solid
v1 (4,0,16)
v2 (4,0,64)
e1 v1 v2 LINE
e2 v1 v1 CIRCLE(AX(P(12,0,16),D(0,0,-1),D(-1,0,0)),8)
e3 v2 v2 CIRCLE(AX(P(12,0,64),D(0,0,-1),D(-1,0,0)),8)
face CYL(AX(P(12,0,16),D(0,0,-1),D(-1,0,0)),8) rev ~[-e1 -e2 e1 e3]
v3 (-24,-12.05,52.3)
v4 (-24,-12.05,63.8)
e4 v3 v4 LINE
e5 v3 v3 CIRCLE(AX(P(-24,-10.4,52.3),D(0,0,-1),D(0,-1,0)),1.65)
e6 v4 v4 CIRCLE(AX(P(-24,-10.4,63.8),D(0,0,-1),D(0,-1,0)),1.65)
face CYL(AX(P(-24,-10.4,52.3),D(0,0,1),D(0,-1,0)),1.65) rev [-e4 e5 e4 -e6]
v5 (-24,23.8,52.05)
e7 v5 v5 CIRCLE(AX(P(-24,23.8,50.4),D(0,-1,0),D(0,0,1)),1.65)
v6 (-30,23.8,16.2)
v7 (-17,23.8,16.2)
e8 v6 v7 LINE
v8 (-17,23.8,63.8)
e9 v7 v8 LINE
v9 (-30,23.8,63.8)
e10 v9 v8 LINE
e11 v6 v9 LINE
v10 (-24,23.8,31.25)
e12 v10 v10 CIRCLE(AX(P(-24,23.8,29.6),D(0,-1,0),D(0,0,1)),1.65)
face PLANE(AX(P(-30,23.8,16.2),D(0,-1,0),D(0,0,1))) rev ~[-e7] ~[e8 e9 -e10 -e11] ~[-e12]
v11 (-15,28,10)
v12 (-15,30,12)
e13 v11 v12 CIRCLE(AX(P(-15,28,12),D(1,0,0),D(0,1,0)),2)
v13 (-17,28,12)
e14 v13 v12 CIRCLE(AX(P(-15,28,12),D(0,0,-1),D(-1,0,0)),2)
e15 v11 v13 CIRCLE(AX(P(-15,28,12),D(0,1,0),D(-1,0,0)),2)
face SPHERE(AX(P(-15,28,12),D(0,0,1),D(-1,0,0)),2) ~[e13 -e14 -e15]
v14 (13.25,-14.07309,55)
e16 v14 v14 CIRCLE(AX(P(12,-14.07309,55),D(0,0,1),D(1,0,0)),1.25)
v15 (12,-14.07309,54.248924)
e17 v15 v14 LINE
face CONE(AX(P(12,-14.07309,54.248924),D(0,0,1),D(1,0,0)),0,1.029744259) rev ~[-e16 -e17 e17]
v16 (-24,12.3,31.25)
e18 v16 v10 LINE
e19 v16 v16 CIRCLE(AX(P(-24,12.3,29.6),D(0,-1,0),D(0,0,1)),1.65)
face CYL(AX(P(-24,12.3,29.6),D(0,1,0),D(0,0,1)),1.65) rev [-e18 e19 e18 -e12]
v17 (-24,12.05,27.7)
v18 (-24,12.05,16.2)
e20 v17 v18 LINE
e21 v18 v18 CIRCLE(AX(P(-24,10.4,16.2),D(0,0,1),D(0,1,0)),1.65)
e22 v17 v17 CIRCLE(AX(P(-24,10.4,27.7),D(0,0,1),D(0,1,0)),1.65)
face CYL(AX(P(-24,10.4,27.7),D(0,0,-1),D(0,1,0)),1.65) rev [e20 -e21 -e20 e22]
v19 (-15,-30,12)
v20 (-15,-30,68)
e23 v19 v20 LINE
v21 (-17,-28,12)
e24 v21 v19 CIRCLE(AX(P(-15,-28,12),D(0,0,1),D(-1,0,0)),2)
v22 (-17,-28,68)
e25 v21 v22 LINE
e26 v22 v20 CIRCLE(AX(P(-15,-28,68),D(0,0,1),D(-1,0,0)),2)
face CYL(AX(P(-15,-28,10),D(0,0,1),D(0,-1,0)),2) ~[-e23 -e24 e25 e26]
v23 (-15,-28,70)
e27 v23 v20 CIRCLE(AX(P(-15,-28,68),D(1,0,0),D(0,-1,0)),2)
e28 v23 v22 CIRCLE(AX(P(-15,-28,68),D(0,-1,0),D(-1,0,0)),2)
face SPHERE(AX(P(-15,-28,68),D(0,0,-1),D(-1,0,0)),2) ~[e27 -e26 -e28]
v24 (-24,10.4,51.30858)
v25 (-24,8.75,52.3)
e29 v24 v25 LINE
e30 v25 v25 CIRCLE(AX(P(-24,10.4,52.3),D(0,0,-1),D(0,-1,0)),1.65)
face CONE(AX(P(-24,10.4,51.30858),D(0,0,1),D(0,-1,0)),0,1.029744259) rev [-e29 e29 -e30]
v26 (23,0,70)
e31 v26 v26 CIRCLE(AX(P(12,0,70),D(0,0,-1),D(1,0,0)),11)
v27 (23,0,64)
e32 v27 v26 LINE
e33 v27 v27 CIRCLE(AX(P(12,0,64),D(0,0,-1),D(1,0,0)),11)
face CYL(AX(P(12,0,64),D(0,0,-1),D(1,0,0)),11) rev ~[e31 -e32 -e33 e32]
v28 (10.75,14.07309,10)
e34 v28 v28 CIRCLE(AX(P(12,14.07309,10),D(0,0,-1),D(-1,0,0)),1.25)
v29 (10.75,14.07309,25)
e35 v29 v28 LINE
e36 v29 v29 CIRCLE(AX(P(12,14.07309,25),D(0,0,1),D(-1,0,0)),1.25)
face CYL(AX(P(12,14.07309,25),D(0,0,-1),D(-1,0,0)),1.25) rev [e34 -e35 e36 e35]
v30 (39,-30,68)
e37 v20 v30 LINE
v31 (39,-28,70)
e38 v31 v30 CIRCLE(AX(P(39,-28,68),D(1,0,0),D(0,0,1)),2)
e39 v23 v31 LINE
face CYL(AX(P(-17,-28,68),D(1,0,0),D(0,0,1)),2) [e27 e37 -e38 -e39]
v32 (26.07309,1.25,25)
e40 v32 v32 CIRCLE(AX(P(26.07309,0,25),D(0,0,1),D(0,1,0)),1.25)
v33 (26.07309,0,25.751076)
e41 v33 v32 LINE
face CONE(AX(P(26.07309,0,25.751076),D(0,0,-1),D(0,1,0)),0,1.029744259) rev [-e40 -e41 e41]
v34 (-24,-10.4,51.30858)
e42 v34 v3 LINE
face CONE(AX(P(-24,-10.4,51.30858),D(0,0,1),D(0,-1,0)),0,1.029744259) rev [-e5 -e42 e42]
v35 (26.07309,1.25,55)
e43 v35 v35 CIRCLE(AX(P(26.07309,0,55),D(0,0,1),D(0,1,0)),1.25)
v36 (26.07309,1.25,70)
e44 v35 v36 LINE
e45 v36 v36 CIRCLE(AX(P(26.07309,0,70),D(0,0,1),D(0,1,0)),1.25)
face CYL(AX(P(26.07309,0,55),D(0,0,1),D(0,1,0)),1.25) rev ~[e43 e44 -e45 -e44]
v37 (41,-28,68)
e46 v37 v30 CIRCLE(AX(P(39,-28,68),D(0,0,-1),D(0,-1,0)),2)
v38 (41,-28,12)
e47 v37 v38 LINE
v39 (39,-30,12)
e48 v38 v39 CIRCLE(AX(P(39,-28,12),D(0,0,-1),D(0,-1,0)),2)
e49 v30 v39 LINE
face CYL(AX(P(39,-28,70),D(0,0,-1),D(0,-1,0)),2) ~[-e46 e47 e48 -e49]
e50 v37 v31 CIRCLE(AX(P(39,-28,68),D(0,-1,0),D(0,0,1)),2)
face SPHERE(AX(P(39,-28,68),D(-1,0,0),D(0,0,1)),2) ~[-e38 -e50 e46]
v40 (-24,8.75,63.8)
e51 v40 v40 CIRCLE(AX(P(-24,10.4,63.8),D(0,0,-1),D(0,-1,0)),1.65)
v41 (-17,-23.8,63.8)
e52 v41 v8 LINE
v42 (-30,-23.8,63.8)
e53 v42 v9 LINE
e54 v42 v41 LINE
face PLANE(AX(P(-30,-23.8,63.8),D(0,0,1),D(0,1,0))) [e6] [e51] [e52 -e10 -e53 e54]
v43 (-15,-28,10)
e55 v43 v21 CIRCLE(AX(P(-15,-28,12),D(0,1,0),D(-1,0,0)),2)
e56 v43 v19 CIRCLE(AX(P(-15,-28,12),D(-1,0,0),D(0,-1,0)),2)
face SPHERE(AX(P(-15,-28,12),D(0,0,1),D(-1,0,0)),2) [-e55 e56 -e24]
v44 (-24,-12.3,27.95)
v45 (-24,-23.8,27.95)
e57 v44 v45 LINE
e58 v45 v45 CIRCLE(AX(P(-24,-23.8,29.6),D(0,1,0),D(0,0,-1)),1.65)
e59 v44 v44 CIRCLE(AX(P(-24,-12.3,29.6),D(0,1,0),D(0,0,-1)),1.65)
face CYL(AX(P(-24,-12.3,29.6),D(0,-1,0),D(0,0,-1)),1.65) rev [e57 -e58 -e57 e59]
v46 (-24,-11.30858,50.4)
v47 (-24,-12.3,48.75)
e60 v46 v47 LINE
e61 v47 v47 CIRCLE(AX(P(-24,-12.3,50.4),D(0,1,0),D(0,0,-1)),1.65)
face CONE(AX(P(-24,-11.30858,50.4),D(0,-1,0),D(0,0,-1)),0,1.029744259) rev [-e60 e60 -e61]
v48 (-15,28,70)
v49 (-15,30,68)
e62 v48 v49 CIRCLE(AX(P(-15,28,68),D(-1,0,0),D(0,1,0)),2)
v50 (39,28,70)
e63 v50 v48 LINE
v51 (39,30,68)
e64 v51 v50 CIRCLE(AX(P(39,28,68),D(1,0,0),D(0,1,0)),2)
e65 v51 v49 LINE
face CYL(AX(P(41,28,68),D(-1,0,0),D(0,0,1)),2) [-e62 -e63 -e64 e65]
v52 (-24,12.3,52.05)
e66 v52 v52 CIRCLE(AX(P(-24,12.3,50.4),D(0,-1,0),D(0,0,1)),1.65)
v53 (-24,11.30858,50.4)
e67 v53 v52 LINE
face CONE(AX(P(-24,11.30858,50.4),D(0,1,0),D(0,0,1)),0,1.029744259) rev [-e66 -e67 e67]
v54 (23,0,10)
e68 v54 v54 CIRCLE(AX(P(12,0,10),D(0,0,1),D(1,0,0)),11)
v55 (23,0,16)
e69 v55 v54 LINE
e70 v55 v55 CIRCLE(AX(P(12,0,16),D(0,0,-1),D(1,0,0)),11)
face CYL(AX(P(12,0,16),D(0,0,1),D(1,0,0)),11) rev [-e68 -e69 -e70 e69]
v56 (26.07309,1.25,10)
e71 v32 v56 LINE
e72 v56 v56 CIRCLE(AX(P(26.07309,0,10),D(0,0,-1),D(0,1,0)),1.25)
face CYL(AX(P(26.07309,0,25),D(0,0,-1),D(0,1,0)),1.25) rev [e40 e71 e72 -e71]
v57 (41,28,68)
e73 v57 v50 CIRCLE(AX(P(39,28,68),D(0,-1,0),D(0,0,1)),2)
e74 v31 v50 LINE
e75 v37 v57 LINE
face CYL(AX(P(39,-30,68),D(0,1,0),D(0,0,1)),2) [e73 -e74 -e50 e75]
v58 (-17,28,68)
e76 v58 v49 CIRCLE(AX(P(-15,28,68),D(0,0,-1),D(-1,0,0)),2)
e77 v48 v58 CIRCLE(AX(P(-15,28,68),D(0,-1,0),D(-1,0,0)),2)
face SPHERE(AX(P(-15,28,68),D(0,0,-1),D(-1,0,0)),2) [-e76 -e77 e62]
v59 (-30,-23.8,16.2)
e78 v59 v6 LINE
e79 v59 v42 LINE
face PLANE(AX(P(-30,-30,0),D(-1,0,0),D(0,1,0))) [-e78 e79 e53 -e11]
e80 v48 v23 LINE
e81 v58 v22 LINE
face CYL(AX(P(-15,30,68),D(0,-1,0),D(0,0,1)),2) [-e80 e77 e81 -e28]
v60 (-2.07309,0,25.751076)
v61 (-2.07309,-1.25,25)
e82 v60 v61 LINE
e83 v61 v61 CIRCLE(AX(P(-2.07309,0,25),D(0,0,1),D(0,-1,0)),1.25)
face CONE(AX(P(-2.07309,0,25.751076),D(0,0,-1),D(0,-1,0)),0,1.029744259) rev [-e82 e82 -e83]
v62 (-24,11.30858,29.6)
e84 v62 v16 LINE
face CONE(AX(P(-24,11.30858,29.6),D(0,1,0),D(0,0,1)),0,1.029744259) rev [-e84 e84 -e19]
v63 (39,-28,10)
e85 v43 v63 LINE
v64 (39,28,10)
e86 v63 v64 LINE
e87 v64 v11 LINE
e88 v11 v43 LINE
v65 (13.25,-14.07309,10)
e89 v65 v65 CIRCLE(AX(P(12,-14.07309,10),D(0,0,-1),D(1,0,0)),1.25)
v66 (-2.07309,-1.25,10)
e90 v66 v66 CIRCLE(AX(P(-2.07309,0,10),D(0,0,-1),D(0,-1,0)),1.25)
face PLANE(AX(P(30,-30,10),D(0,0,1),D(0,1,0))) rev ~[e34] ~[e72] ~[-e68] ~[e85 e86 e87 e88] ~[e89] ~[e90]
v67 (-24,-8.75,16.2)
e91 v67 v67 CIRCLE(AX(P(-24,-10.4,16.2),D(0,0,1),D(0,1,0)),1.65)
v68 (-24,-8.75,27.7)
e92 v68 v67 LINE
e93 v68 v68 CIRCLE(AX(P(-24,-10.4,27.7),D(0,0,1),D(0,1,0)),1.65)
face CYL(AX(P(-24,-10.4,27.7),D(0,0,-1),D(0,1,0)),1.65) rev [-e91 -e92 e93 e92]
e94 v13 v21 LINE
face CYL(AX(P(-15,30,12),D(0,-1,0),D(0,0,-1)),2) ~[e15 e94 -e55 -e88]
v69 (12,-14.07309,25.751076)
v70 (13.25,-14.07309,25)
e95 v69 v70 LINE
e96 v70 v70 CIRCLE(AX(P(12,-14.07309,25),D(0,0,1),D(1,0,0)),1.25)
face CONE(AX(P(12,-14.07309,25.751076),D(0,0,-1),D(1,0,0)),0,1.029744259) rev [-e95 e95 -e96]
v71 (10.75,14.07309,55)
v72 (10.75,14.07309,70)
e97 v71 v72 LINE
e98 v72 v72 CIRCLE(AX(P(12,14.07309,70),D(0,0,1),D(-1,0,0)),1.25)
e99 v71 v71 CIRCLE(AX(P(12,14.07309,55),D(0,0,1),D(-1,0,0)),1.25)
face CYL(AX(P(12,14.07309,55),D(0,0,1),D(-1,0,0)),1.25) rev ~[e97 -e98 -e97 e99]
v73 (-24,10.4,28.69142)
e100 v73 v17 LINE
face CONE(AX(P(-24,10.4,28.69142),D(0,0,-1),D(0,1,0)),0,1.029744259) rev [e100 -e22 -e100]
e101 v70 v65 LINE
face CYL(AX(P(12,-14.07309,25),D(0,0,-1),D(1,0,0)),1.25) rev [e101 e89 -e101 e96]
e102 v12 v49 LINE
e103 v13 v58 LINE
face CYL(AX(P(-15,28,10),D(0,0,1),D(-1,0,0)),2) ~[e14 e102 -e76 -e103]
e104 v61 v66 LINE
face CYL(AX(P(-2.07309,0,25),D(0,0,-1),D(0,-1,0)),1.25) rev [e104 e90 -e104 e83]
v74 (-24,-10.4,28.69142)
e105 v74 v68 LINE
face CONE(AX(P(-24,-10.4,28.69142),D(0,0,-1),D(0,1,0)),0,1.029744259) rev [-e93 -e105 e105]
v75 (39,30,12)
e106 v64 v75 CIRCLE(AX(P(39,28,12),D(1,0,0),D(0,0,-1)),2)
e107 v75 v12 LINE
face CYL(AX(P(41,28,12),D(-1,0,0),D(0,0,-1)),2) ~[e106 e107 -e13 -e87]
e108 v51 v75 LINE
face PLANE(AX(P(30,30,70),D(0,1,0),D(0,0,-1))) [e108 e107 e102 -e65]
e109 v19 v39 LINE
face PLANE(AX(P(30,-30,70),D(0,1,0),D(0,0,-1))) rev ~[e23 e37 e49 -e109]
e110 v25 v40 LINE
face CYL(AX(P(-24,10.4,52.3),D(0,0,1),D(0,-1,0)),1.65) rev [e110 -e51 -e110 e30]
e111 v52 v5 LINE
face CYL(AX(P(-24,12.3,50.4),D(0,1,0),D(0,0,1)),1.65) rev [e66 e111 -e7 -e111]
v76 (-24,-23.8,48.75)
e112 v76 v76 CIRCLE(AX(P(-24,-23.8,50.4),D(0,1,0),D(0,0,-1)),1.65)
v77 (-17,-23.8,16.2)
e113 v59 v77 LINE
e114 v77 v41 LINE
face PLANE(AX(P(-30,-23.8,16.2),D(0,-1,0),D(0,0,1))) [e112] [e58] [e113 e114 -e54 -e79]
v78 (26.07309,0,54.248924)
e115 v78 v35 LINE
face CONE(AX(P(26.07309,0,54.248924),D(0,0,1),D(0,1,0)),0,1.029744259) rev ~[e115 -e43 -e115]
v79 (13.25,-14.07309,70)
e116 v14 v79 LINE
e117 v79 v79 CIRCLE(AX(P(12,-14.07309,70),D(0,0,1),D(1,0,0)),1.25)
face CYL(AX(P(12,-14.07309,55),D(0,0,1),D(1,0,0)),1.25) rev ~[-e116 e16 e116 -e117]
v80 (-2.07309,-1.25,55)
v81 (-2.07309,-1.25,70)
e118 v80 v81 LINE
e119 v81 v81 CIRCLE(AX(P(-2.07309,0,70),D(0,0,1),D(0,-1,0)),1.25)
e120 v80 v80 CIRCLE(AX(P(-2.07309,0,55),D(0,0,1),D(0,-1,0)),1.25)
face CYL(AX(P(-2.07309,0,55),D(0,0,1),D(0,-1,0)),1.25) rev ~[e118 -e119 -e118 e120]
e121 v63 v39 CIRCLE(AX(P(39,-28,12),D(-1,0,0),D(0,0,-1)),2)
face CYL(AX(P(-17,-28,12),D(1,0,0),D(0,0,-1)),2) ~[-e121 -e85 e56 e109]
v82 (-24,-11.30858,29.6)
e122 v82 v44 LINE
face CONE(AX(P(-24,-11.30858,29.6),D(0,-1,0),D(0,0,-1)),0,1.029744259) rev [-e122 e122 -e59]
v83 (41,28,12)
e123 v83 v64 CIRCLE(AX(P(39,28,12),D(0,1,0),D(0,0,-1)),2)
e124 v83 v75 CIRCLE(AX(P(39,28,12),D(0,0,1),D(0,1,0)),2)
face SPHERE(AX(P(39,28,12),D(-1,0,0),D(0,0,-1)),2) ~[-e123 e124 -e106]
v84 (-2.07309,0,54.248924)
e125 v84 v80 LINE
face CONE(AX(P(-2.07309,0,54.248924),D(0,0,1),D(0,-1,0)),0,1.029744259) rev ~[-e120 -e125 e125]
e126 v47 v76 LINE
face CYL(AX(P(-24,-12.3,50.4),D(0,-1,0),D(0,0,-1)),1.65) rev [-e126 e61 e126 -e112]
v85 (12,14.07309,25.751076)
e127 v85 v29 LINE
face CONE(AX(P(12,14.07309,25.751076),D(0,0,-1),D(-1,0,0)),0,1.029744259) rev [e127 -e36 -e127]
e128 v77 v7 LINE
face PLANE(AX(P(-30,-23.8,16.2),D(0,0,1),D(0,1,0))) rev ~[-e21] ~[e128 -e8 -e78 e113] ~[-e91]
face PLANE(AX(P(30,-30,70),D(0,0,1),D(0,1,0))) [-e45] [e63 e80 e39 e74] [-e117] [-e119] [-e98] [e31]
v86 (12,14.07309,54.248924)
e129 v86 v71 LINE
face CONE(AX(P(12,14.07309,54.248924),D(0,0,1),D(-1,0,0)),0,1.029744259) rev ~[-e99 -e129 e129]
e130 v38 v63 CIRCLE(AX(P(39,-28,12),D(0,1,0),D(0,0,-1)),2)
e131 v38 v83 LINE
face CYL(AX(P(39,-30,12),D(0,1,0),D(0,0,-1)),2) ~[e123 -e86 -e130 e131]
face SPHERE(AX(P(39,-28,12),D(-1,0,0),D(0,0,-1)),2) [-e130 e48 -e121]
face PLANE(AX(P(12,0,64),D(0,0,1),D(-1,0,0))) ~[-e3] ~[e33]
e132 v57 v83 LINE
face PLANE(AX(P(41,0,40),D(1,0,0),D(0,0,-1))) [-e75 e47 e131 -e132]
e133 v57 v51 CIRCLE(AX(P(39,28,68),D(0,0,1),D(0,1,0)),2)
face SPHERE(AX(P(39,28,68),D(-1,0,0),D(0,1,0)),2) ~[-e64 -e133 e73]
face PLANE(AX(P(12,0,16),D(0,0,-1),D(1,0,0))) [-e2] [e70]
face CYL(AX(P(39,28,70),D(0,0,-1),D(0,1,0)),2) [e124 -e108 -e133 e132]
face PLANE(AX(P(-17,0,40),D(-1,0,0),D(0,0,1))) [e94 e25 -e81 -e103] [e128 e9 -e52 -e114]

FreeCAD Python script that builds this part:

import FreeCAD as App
import Part
import Sketcher
from FreeCAD import Vector
Q = App.Units.Quantity


def edges_at(feature, points):
    """Names of the edges that pass closest to the given points."""
    edges = feature.Shape.Edges
    near = lambda p: min(range(len(edges)), key=lambda i: edges[i].distToShape(Part.Vertex(*p))[0])
    return sorted({f"Edge{near(p) + 1}" for p in points})

doc = App.newDocument("Part")
body = doc.addObject("PartDesign::Body", "Body")

# Sketch on XY plane
sketch1 = body.newObject("Sketcher::SketchObject", "Sketch")
sketch1.AttachmentSupport = (doc.getObject("XY_Plane"), [""])
sketch1.MapMode = "FlatFace"
sketch1.addGeometry(Part.LineSegment(Vector(-30, 30, 0), Vector(-30, -30, 0)), False)
sketch1.addGeometry(Part.LineSegment(Vector(-30, -30, 0), Vector(30, -30, 0)), False)
sketch1.addGeometry(Part.LineSegment(Vector(30, -30, 0), Vector(30, 30, 0)), False)
sketch1.addGeometry(Part.LineSegment(Vector(30, 30, 0), Vector(-30, 30, 0)), False)
sketch1.addConstraint(Sketcher.Constraint("Coincident", 0, 2, 1, 1))
sketch1.addConstraint(Sketcher.Constraint("Coincident", 1, 2, 2, 1))
sketch1.addConstraint(Sketcher.Constraint("Coincident", 2, 2, 3, 1))
sketch1.addConstraint(Sketcher.Constraint("Coincident", 3, 2, 0, 1))
sketch1.addConstraint(Sketcher.Constraint("Vertical", 0))
sketch1.addConstraint(Sketcher.Constraint("Horizontal", 1))
sketch1.addConstraint(Sketcher.Constraint("Vertical", 2))
sketch1.addConstraint(Sketcher.Constraint("Horizontal", 3))
sketch1.addConstraint(Sketcher.Constraint("Symmetric", 0, 2, 2, 2, -1, 1))
sketch1.addConstraint(Sketcher.Constraint("Equal", 3, 0))
sketch1.addConstraint(Sketcher.Constraint("DistanceX", 1, 1, 1, 2, 60.0))
pad1 = body.newObject("PartDesign::Pad", "Pad")
pad1.Profile = sketch1
pad1.Length = 80

# Sketch on XY plane
sketch2 = body.newObject("Sketcher::SketchObject", "Sketch001")
sketch2.AttachmentSupport = (doc.getObject("XY_Plane"), [""])
sketch2.MapMode = "FlatFace"
sketch2.AttachmentOffset = App.Placement(Vector(0, 0, 16), App.Rotation())
sketch2.addGeometry(Part.Circle(Vector(12, 0, 0), Vector(0, 0, 1), 11), False)
sketch2.addConstraint(Sketcher.Constraint("PointOnObject", 0, 3, -1))
sketch2.addConstraint(Sketcher.Constraint("Diameter", 0, 22.0))
sketch2.addConstraint(Sketcher.Constraint("DistanceX", -1, 1, 0, 3, 12.0))
pocket1 = body.newObject("PartDesign::Pocket", "Pocket")
pocket1.Profile = sketch2
pocket1.Length = 107.553851

# Sketch on YZ plane
sketch3 = body.newObject("Sketcher::SketchObject", "Sketch002")
sketch3.AttachmentSupport = (doc.getObject("YZ_Plane"), [""])
sketch3.MapMode = "FlatFace"
sketch3.AttachmentOffset = App.Placement(Vector(0, 0, -30), App.Rotation())
sketch3.addGeometry(Part.LineSegment(Vector(43, -13, 0), Vector(-43, -13, 0)), False)
sketch3.addGeometry(Part.LineSegment(Vector(-43, -13, 0), Vector(-43, 93, 0)), False)
sketch3.addGeometry(Part.LineSegment(Vector(-43, 93, 0), Vector(43, 93, 0)), False)
sketch3.addGeometry(Part.LineSegment(Vector(43, 93, 0), Vector(43, -13, 0)), False)
sketch3.addGeometry(Part.LineSegment(Vector(-24, 64, 0), Vector(-24, 16, 0)), False)
sketch3.addGeometry(Part.LineSegment(Vector(-24, 16, 0), Vector(24, 16, 0)), False)
sketch3.addGeometry(Part.LineSegment(Vector(24, 16, 0), Vector(24, 64, 0)), False)
sketch3.addGeometry(Part.LineSegment(Vector(24, 64, 0), Vector(-24, 64, 0)), False)
sketch3.addConstraint(Sketcher.Constraint("Coincident", 0, 2, 1, 1))
sketch3.addConstraint(Sketcher.Constraint("Coincident", 1, 2, 2, 1))
sketch3.addConstraint(Sketcher.Constraint("Coincident", 2, 2, 3, 1))
sketch3.addConstraint(Sketcher.Constraint("Coincident", 3, 2, 0, 1))
sketch3.addConstraint(Sketcher.Constraint("Coincident", 4, 2, 5, 1))
sketch3.addConstraint(Sketcher.Constraint("Coincident", 5, 2, 6, 1))
sketch3.addConstraint(Sketcher.Constraint("Coincident", 6, 2, 7, 1))
sketch3.addConstraint(Sketcher.Constraint("Coincident", 7, 2, 4, 1))
sketch3.addConstraint(Sketcher.Constraint("Horizontal", 0))
sketch3.addConstraint(Sketcher.Constraint("Vertical", 1))
sketch3.addConstraint(Sketcher.Constraint("Horizontal", 2))
sketch3.addConstraint(Sketcher.Constraint("Vertical", 3))
sketch3.addConstraint(Sketcher.Constraint("Vertical", 4))
sketch3.addConstraint(Sketcher.Constraint("Horizontal", 5))
sketch3.addConstraint(Sketcher.Constraint("Vertical", 6))
sketch3.addConstraint(Sketcher.Constraint("Horizontal", 7))
sketch3.addConstraint(Sketcher.Constraint("Equal", 7, 4))
sketch3.addConstraint(Sketcher.Constraint("DistanceX", 5, 1, 5, 2, 47.6))
sketch3.addConstraint(Sketcher.Constraint("DistanceX", 4, 2, -1, 1, 23.8))
sketch3.addConstraint(Sketcher.Constraint("DistanceY", -1, 1, 4, 2, 16.2))
sketch3.addConstraint(Sketcher.Constraint("DistanceX", 0, 2, 0, 1, 85.324))
sketch3.addConstraint(Sketcher.Constraint("DistanceY", 1, 1, 1, 2, 105.324))
sketch3.addConstraint(Sketcher.Constraint("DistanceX", 0, 2, -1, 1, 42.662))
sketch3.addConstraint(Sketcher.Constraint("DistanceY", 0, 2, -1, 1, 12.662))
pocket2 = body.newObject("PartDesign::Pocket", "Pocket001")
pocket2.Profile = sketch3
pocket2.Length = 13
pocket2.Reversed = True

# Sketch on YZ plane
sketch4 = body.newObject("Sketcher::SketchObject", "Sketch003")
sketch4.AttachmentSupport = (doc.getObject("YZ_Plane"), [""])
sketch4.MapMode = "FlatFace"
sketch4.AttachmentOffset = App.Placement(Vector(0, 0, -24), App.Rotation())
sketch4.addGeometry(Part.LineSegment(Vector(-11.3, 29.6, 0), Vector(-23.8, 29.6, 0)), False)
sketch4.addGeometry(Part.LineSegment(Vector(-23.8, 29.6, 0), Vector(-23.8, 27.9, 0)), False)
sketch4.addGeometry(Part.LineSegment(Vector(-23.8, 27.9, 0), Vector(-12.3, 27.9, 0)), False)
sketch4.addGeometry(Part.LineSegment(Vector(-12.3, 27.9, 0), Vector(-11.3, 29.6, 0)), False)
sketch4.addGeometry(Part.LineSegment(Vector(-23.8, 29.6, 0), Vector(-11.3, 29.6, 0)), True)  # axis
sketch4.addConstraint(Sketcher.Constraint("Coincident", 0, 2, 1, 1))
sketch4.addConstraint(Sketcher.Constraint("Coincident", 1, 2, 2, 1))
sketch4.addConstraint(Sketcher.Constraint("Coincident", 2, 2, 3, 1))
sketch4.addConstraint(Sketcher.Constraint("Coincident", 3, 2, 0, 1))
sketch4.addConstraint(Sketcher.Constraint("Horizontal", 0))
sketch4.addConstraint(Sketcher.Constraint("Vertical", 1))
sketch4.addConstraint(Sketcher.Constraint("Horizontal", 2))
sketch4.addConstraint(Sketcher.Constraint("Horizontal", 4))
sketch4.addConstraint(Sketcher.Constraint("Coincident", 4, 1, 0, 2))
sketch4.addConstraint(Sketcher.Constraint("Equal", 0, 4))
sketch4.addConstraint(Sketcher.Constraint("Angle", 3, Q("59 deg")))
sketch4.addConstraint(Sketcher.Constraint("DistanceX", 2, 1, 2, 2, 11.5))
sketch4.addConstraint(Sketcher.Constraint("DistanceY", 1, 2, 1, 1, 1.65))
sketch4.addConstraint(Sketcher.Constraint("DistanceX", 0, 2, -1, 1, 23.8))
sketch4.addConstraint(Sketcher.Constraint("DistanceY", -1, 1, 0, 2, 29.6))
groove = body.newObject("PartDesign::Groove", "Groove")
groove.Profile = sketch4
groove.ReferenceAxis = (sketch4, ["Axis0"])
groove.Angle = 360
doc.recompute()

linearpattern = body.newObject("PartDesign::LinearPattern", "LinearPattern")
linearpattern.Originals = [groove]
linearpattern.Direction = (doc.getObject("Z_Axis"), [""])
linearpattern.Mode = "offset"
linearpattern.Offset = 20.8
linearpattern.Occurrences = 2
body.Tip = linearpattern
doc.recompute()

datumline = body.newObject("PartDesign::Line", "DatumLine")
datumline.Placement = App.Placement(Vector(0, 0, 40), App.Rotation(Vector(0, 0, 1), Vector(1, 0, 0)))
polarpattern = body.newObject("PartDesign::PolarPattern", "PolarPattern")
polarpattern.Originals = [groove]
polarpattern.Axis = (datumline, [""])
polarpattern.Angle = 360
polarpattern.Occurrences = 4
body.Tip = polarpattern

# Sketch on YZ plane
sketch5 = body.newObject("Sketcher::SketchObject", "Sketch004")
sketch5.AttachmentSupport = (doc.getObject("YZ_Plane"), [""])
sketch5.MapMode = "FlatFace"
sketch5.AttachmentOffset = App.Placement(Vector(0, 0, -24), App.Rotation())
sketch5.addGeometry(Part.LineSegment(Vector(-10.4, 28.7, 0), Vector(-10.4, 16.2, 0)), False)
sketch5.addGeometry(Part.LineSegment(Vector(-10.4, 16.2, 0), Vector(-8.8, 16.2, 0)), False)
sketch5.addGeometry(Part.LineSegment(Vector(-8.8, 16.2, 0), Vector(-8.8, 27.7, 0)), False)
sketch5.addGeometry(Part.LineSegment(Vector(-8.8, 27.7, 0), Vector(-10.4, 28.7, 0)), False)
sketch5.addGeometry(Part.LineSegment(Vector(-10.4, 16.2, 0), Vector(-10.4, 28.7, 0)), True)  # axis
sketch5.addConstraint(Sketcher.Constraint("Coincident", 0, 2, 1, 1))
sketch5.addConstraint(Sketcher.Constraint("Coincident", 1, 2, 2, 1))
sketch5.addConstraint(Sketcher.Constraint("Coincident", 2, 2, 3, 1))
sketch5.addConstraint(Sketcher.Constraint("Coincident", 3, 2, 0, 1))
sketch5.addConstraint(Sketcher.Constraint("Vertical", 0))
sketch5.addConstraint(Sketcher.Constraint("Horizontal", 1))
sketch5.addConstraint(Sketcher.Constraint("Vertical", 2))
sketch5.addConstraint(Sketcher.Constraint("Vertical", 4))
sketch5.addConstraint(Sketcher.Constraint("Coincident", 4, 1, 0, 2))
sketch5.addConstraint(Sketcher.Constraint("Equal", 0, 4))
sketch5.addConstraint(Sketcher.Constraint("Angle", 3, Q("149 deg")))
sketch5.addConstraint(Sketcher.Constraint("DistanceY", 2, 1, 2, 2, 11.5))
sketch5.addConstraint(Sketcher.Constraint("DistanceX", 1, 1, 1, 2, 1.65))
sketch5.addConstraint(Sketcher.Constraint("DistanceX", 0, 2, -1, 1, 10.4))
sketch5.addConstraint(Sketcher.Constraint("DistanceY", -1, 1, 0, 2, 16.2))
groove2 = body.newObject("PartDesign::Groove", "Groove001")
groove2.Profile = sketch5
groove2.ReferenceAxis = (sketch5, ["Axis0"])
groove2.Angle = 360

# Sketch on YZ plane
sketch6 = body.newObject("Sketcher::SketchObject", "Sketch005")
sketch6.AttachmentSupport = (doc.getObject("YZ_Plane"), [""])
sketch6.MapMode = "FlatFace"
sketch6.AttachmentOffset = App.Placement(Vector(0, 0, -24), App.Rotation())
sketch6.addGeometry(Part.LineSegment(Vector(11.3, 29.6, 0), Vector(23.8, 29.6, 0)), False)
sketch6.addGeometry(Part.LineSegment(Vector(23.8, 29.6, 0), Vector(23.8, 31.2, 0)), False)
sketch6.addGeometry(Part.LineSegment(Vector(23.8, 31.2, 0), Vector(12.3, 31.2, 0)), False)
sketch6.addGeometry(Part.LineSegment(Vector(12.3, 31.2, 0), Vector(11.3, 29.6, 0)), False)
sketch6.addGeometry(Part.LineSegment(Vector(23.8, 29.6, 0), Vector(11.3, 29.6, 0)), True)  # axis
sketch6.addConstraint(Sketcher.Constraint("Coincident", 0, 2, 1, 1))
sketch6.addConstraint(Sketcher.Constraint("Coincident", 1, 2, 2, 1))
sketch6.addConstraint(Sketcher.Constraint("Coincident", 2, 2, 3, 1))
sketch6.addConstraint(Sketcher.Constraint("Coincident", 3, 2, 0, 1))
sketch6.addConstraint(Sketcher.Constraint("Horizontal", 0))
sketch6.addConstraint(Sketcher.Constraint("Vertical", 1))
sketch6.addConstraint(Sketcher.Constraint("Horizontal", 2))
sketch6.addConstraint(Sketcher.Constraint("Horizontal", 4))
sketch6.addConstraint(Sketcher.Constraint("Coincident", 4, 1, 0, 2))
sketch6.addConstraint(Sketcher.Constraint("Equal", 0, 4))
sketch6.addConstraint(Sketcher.Constraint("Angle", 3, Q("-121 deg")))
sketch6.addConstraint(Sketcher.Constraint("DistanceX", 2, 2, 2, 1, 11.5))
sketch6.addConstraint(Sketcher.Constraint("DistanceY", 1, 1, 1, 2, 1.65))
sketch6.addConstraint(Sketcher.Constraint("DistanceX", -1, 1, 0, 2, 23.8))
sketch6.addConstraint(Sketcher.Constraint("DistanceY", -1, 1, 0, 2, 29.6))
groove3 = body.newObject("PartDesign::Groove", "Groove002")
groove3.Profile = sketch6
groove3.ReferenceAxis = (sketch6, ["Axis0"])
groove3.Angle = 360

# Sketch on YZ plane
sketch7 = body.newObject("Sketcher::SketchObject", "Sketch006")
sketch7.AttachmentSupport = (doc.getObject("YZ_Plane"), [""])
sketch7.MapMode = "FlatFace"
sketch7.AttachmentOffset = App.Placement(Vector(0, 0, -24), App.Rotation())
sketch7.addGeometry(Part.LineSegment(Vector(10.4, 51.3, 0), Vector(10.4, 63.8, 0)), False)
sketch7.addGeometry(Part.LineSegment(Vector(10.4, 63.8, 0), Vector(8.8, 63.8, 0)), False)
sketch7.addGeometry(Part.LineSegment(Vector(8.8, 63.8, 0), Vector(8.8, 52.3, 0)), False)
sketch7.addGeometry(Part.LineSegment(Vector(8.8, 52.3, 0), Vector(10.4, 51.3, 0)), False)
sketch7.addGeometry(Part.LineSegment(Vector(10.4, 63.8, 0), Vector(10.4, 51.3, 0)), True)  # axis
sketch7.addConstraint(Sketcher.Constraint("Coincident", 0, 2, 1, 1))
sketch7.addConstraint(Sketcher.Constraint("Coincident", 1, 2, 2, 1))
sketch7.addConstraint(Sketcher.Constraint("Coincident", 2, 2, 3, 1))
sketch7.addConstraint(Sketcher.Constraint("Coincident", 3, 2, 0, 1))
sketch7.addConstraint(Sketcher.Constraint("Vertical", 0))
sketch7.addConstraint(Sketcher.Constraint("Horizontal", 1))
sketch7.addConstraint(Sketcher.Constraint("Vertical", 2))
sketch7.addConstraint(Sketcher.Constraint("Vertical", 4))
sketch7.addConstraint(Sketcher.Constraint("Coincident", 4, 1, 0, 2))
sketch7.addConstraint(Sketcher.Constraint("Equal", 0, 4))
sketch7.addConstraint(Sketcher.Constraint("Angle", 3, Q("-31 deg")))
sketch7.addConstraint(Sketcher.Constraint("DistanceY", 2, 2, 2, 1, 11.5))
sketch7.addConstraint(Sketcher.Constraint("DistanceX", 1, 2, 1, 1, 1.65))
sketch7.addConstraint(Sketcher.Constraint("DistanceX", -1, 1, 0, 2, 10.4))
sketch7.addConstraint(Sketcher.Constraint("DistanceY", -1, 1, 0, 2, 63.8))
groove4 = body.newObject("PartDesign::Groove", "Groove003")
groove4.Profile = sketch7
groove4.ReferenceAxis = (sketch7, ["Axis0"])
groove4.Angle = 360
doc.recompute()

datumplane = body.newObject("PartDesign::Plane", "DatumPlane")
datumplane.AttachmentSupport = (doc.getObject("XY_Plane"), [""])
datumplane.MapMode = "FlatFace"
datumplane.AttachmentOffset = App.Placement(Vector(0, 0, 40), App.Rotation())
mirrored = body.newObject("PartDesign::Mirrored", "Mirrored")
mirrored.Originals = [pocket1]
mirrored.MirrorPlane = (datumplane, [""])
body.Tip = mirrored

# Sketch on YZ plane
sketch8 = body.newObject("Sketcher::SketchObject", "Sketch007")
sketch8.AttachmentSupport = (doc.getObject("YZ_Plane"), [""])
sketch8.MapMode = "FlatFace"
sketch8.AttachmentOffset = App.Placement(Vector(0, 0, 26.07309), App.Rotation())
sketch8.addGeometry(Part.LineSegment(Vector(0, 25.8, 0), Vector(0, 0, 0)), False)
sketch8.addGeometry(Part.LineSegment(Vector(0, 0, 0), Vector(1.2, 0, 0)), False)
sketch8.addGeometry(Part.LineSegment(Vector(1.2, 0, 0), Vector(1.2, 25, 0)), False)
sketch8.addGeometry(Part.LineSegment(Vector(1.2, 25, 0), Vector(0, 25.8, 0)), False)
sketch8.addConstraint(Sketcher.Constraint("Coincident", 0, 2, 1, 1))
sketch8.addConstraint(Sketcher.Constraint("Coincident", 1, 2, 2, 1))
sketch8.addConstraint(Sketcher.Constraint("Coincident", 2, 2, 3, 1))
sketch8.addConstraint(Sketcher.Constraint("Coincident", 3, 2, 0, 1))
sketch8.addConstraint(Sketcher.Constraint("Vertical", 0))
sketch8.addConstraint(Sketcher.Constraint("Horizontal", 1))
sketch8.addConstraint(Sketcher.Constraint("Vertical", 2))
sketch8.addConstraint(Sketcher.Constraint("Coincident", 0, 2, -1, 1))
sketch8.addConstraint(Sketcher.Constraint("DistanceY", 2, 1, 2, 2, 25.0))
sketch8.addConstraint(Sketcher.Constraint("Angle", 3, Q("149 deg")))
sketch8.addConstraint(Sketcher.Constraint("DistanceX", 1, 1, 1, 2, 1.25))
groove5 = body.newObject("PartDesign::Groove", "Groove004")
groove5.Profile = sketch8
groove5.ReferenceAxis = (sketch8, ["V_Axis"])
groove5.Angle = 360
doc.recompute()

datumline2 = body.newObject("PartDesign::Line", "DatumLine001")
datumline2.Placement = App.Placement(Vector(12, 0, 0), App.Rotation(Vector(0, 0, 1), Vector(0, 0, 1)))
polarpattern2 = body.newObject("PartDesign::PolarPattern", "PolarPattern001")
polarpattern2.Originals = [groove5]
polarpattern2.Axis = (datumline2, [""])
polarpattern2.Angle = 360
polarpattern2.Occurrences = 4
body.Tip = polarpattern2
doc.recompute()

datumplane2 = body.newObject("PartDesign::Plane", "DatumPlane001")
datumplane2.AttachmentSupport = (doc.getObject("XY_Plane"), [""])
datumplane2.MapMode = "FlatFace"
datumplane2.AttachmentOffset = App.Placement(Vector(0, 0, 40), App.Rotation())
mirrored2 = body.newObject("PartDesign::Mirrored", "Mirrored001")
mirrored2.Originals = [groove5]
mirrored2.MirrorPlane = (datumplane2, [""])
body.Tip = mirrored2

# Sketch on XZ plane
sketch9 = body.newObject("Sketcher::SketchObject", "Sketch008")
sketch9.AttachmentSupport = (doc.getObject("XZ_Plane"), [""])
sketch9.MapMode = "FlatFace"
sketch9.AttachmentOffset = App.Placement(Vector(0, 0, -14.07309), App.Rotation())
sketch9.addGeometry(Part.LineSegment(Vector(12, 80, 0), Vector(12, 54.2, 0)), False)
sketch9.addGeometry(Part.LineSegment(Vector(12, 54.2, 0), Vector(10.8, 55, 0)), False)
sketch9.addGeometry(Part.LineSegment(Vector(10.8, 55, 0), Vector(10.8, 80, 0)), False)
sketch9.addGeometry(Part.LineSegment(Vector(10.8, 80, 0), Vector(12, 80, 0)), False)
sketch9.addGeometry(Part.LineSegment(Vector(12, 54.2, 0), Vector(12, 80, 0)), True)  # axis
sketch9.addConstraint(Sketcher.Constraint("Coincident", 0, 2, 1, 1))
sketch9.addConstraint(Sketcher.Constraint("Coincident", 1, 2, 2, 1))
sketch9.addConstraint(Sketcher.Constraint("Coincident", 2, 2, 3, 1))
sketch9.addConstraint(Sketcher.Constraint("Coincident", 3, 2, 0, 1))
sketch9.addConstraint(Sketcher.Constraint("Vertical", 0))
sketch9.addConstraint(Sketcher.Constraint("Vertical", 2))
sketch9.addConstraint(Sketcher.Constraint("Horizontal", 3))
sketch9.addConstraint(Sketcher.Constraint("Vertical", 4))
sketch9.addConstraint(Sketcher.Constraint("Coincident", 4, 1, 0, 2))
sketch9.addConstraint(Sketcher.Constraint("Horizontal", 2, 2, 4, 2))
sketch9.addConstraint(Sketcher.Constraint("DistanceY", 2, 1, 2, 2, 25.0))
sketch9.addConstraint(Sketcher.Constraint("Angle", 1, Q("149 deg")))
sketch9.addConstraint(Sketcher.Constraint("DistanceX", -1, 1, 0, 2, 12.0))
sketch9.addConstraint(Sketcher.Constraint("DistanceY", -1, 1, 1, 2, 55.0))
sketch9.addConstraint(Sketcher.Constraint("DistanceX", 3, 1, 3, 2, 1.25))
groove6 = body.newObject("PartDesign::Groove", "Groove005")
groove6.Profile = sketch9
groove6.ReferenceAxis = (sketch9, ["Axis0"])
groove6.Angle = 360

# Sketch on YZ plane
sketch10 = body.newObject("Sketcher::SketchObject", "Sketch009")
sketch10.AttachmentSupport = (doc.getObject("YZ_Plane"), [""])
sketch10.MapMode = "FlatFace"
sketch10.AttachmentOffset = App.Placement(Vector(0, 0, -2.07309), App.Rotation())
sketch10.addGeometry(Part.LineSegment(Vector(0, 80, 0), Vector(0, 54.2, 0)), False)
sketch10.addGeometry(Part.LineSegment(Vector(0, 54.2, 0), Vector(-1.2, 55, 0)), False)
sketch10.addGeometry(Part.LineSegment(Vector(-1.2, 55, 0), Vector(-1.2, 80, 0)), False)
sketch10.addGeometry(Part.LineSegment(Vector(-1.2, 80, 0), Vector(0, 80, 0)), False)
sketch10.addConstraint(Sketcher.Constraint("Coincident", 0, 2, 1, 1))
sketch10.addConstraint(Sketcher.Constraint("Coincident", 1, 2, 2, 1))
sketch10.addConstraint(Sketcher.Constraint("Coincident", 2, 2, 3, 1))
sketch10.addConstraint(Sketcher.Constraint("Coincident", 3, 2, 0, 1))
sketch10.addConstraint(Sketcher.Constraint("Vertical", 0))
sketch10.addConstraint(Sketcher.Constraint("Vertical", 2))
sketch10.addConstraint(Sketcher.Constraint("Horizontal", 3))
sketch10.addConstraint(Sketcher.Constraint("PointOnObject", 0, 2, -2))
sketch10.addConstraint(Sketcher.Constraint("DistanceY", 2, 1, 2, 2, 25.0))
sketch10.addConstraint(Sketcher.Constraint("Angle", 1, Q("149 deg")))
sketch10.addConstraint(Sketcher.Constraint("DistanceY", -1, 1, 1, 2, 55.0))
sketch10.addConstraint(Sketcher.Constraint("DistanceX", 3, 1, 3, 2, 1.25))
groove7 = body.newObject("PartDesign::Groove", "Groove006")
groove7.Profile = sketch10
groove7.ReferenceAxis = (sketch10, ["V_Axis"])
groove7.Angle = 360

# Sketch on XZ plane
sketch11 = body.newObject("Sketcher::SketchObject", "Sketch010")
sketch11.AttachmentSupport = (doc.getObject("XZ_Plane"), [""])
sketch11.MapMode = "FlatFace"
sketch11.AttachmentOffset = App.Placement(Vector(0, 0, 14.07309), App.Rotation())
sketch11.addGeometry(Part.LineSegment(Vector(12, 80, 0), Vector(12, 54.2, 0)), False)
sketch11.addGeometry(Part.LineSegment(Vector(12, 54.2, 0), Vector(13.2, 55, 0)), False)
sketch11.addGeometry(Part.LineSegment(Vector(13.2, 55, 0), Vector(13.2, 80, 0)), False)
sketch11.addGeometry(Part.LineSegment(Vector(13.2, 80, 0), Vector(12, 80, 0)), False)
sketch11.addGeometry(Part.LineSegment(Vector(12, 54.2, 0), Vector(12, 80, 0)), True)  # axis
sketch11.addConstraint(Sketcher.Constraint("Coincident", 0, 2, 1, 1))
sketch11.addConstraint(Sketcher.Constraint("Coincident", 1, 2, 2, 1))
sketch11.addConstraint(Sketcher.Constraint("Coincident", 2, 2, 3, 1))
sketch11.addConstraint(Sketcher.Constraint("Coincident", 3, 2, 0, 1))
sketch11.addConstraint(Sketcher.Constraint("Vertical", 0))
sketch11.addConstraint(Sketcher.Constraint("Vertical", 2))
sketch11.addConstraint(Sketcher.Constraint("Horizontal", 3))
sketch11.addConstraint(Sketcher.Constraint("Vertical", 4))
sketch11.addConstraint(Sketcher.Constraint("Coincident", 4, 1, 0, 2))
sketch11.addConstraint(Sketcher.Constraint("Horizontal", 2, 2, 4, 2))
sketch11.addConstraint(Sketcher.Constraint("DistanceY", 2, 1, 2, 2, 25.0))
sketch11.addConstraint(Sketcher.Constraint("Angle", 1, Q("31 deg")))
sketch11.addConstraint(Sketcher.Constraint("DistanceX", -1, 1, 0, 2, 12.0))
sketch11.addConstraint(Sketcher.Constraint("DistanceY", -1, 1, 1, 2, 55.0))
sketch11.addConstraint(Sketcher.Constraint("DistanceX", 3, 2, 3, 1, 1.25))
groove8 = body.newObject("PartDesign::Groove", "Groove007")
groove8.Profile = sketch11
groove8.ReferenceAxis = (sketch11, ["Axis0"])
groove8.Angle = 360

# Sketch on XY plane
sketch12 = body.newObject("Sketcher::SketchObject", "Sketch011")
sketch12.AttachmentSupport = (doc.getObject("XY_Plane"), [""])
sketch12.MapMode = "FlatFace"
sketch12.AttachmentOffset = App.Placement(Vector(0, 0, 16), App.Rotation())
sketch12.addGeometry(Part.Circle(Vector(12, 0, 0), Vector(0, 0, 1), 8), False)
sketch12.addConstraint(Sketcher.Constraint("PointOnObject", 0, 3, -1))
sketch12.addConstraint(Sketcher.Constraint("Diameter", 0, 16.0))
sketch12.addConstraint(Sketcher.Constraint("DistanceX", -1, 1, 0, 3, 12.0))
pocket3 = body.newObject("PartDesign::Pocket", "Pocket002")
pocket3.Profile = sketch12
pocket3.Type = "ThroughAll"
pocket3.Reversed = True

# Sketch on YZ plane
sketch13 = body.newObject("Sketcher::SketchObject", "Sketch012")
sketch13.AttachmentSupport = (doc.getObject("YZ_Plane"), [""])
sketch13.MapMode = "FlatFace"
sketch13.AttachmentOffset = App.Placement(Vector(0, 0, 30), App.Rotation())
sketch13.addGeometry(Part.LineSegment(Vector(30, 10, 0), Vector(-30, 10, 0)), False)
sketch13.addGeometry(Part.LineSegment(Vector(-30, 10, 0), Vector(-30, 0, 0)), False)
sketch13.addGeometry(Part.LineSegment(Vector(-30, 0, 0), Vector(30, 0, 0)), False)
sketch13.addGeometry(Part.LineSegment(Vector(30, 0, 0), Vector(30, 10, 0)), False)
sketch13.addGeometry(Part.LineSegment(Vector(30, 80, 0), Vector(-30, 80, 0)), False)
sketch13.addGeometry(Part.LineSegment(Vector(-30, 80, 0), Vector(-30, 70, 0)), False)
sketch13.addGeometry(Part.LineSegment(Vector(-30, 70, 0), Vector(30, 70, 0)), False)
sketch13.addGeometry(Part.LineSegment(Vector(30, 70, 0), Vector(30, 80, 0)), False)
sketch13.addConstraint(Sketcher.Constraint("Coincident", 0, 2, 1, 1))
sketch13.addConstraint(Sketcher.Constraint("Coincident", 1, 2, 2, 1))
sketch13.addConstraint(Sketcher.Constraint("Coincident", 2, 2, 3, 1))
sketch13.addConstraint(Sketcher.Constraint("Coincident", 3, 2, 0, 1))
sketch13.addConstraint(Sketcher.Constraint("Coincident", 4, 2, 5, 1))
sketch13.addConstraint(Sketcher.Constraint("Coincident", 5, 2, 6, 1))
sketch13.addConstraint(Sketcher.Constraint("Coincident", 6, 2, 7, 1))
sketch13.addConstraint(Sketcher.Constraint("Coincident", 7, 2, 4, 1))
sketch13.addConstraint(Sketcher.Constraint("Horizontal", 0))
sketch13.addConstraint(Sketcher.Constraint("Vertical", 1))
sketch13.addConstraint(Sketcher.Constraint("Horizontal", 2))
sketch13.addConstraint(Sketcher.Constraint("Vertical", 3))
sketch13.addConstraint(Sketcher.Constraint("Horizontal", 4))
sketch13.addConstraint(Sketcher.Constraint("Vertical", 5))
sketch13.addConstraint(Sketcher.Constraint("Horizontal", 6))
sketch13.addConstraint(Sketcher.Constraint("Vertical", 7))
sketch13.addConstraint(Sketcher.Constraint("Symmetric", 1, 2, 2, 2, -1, 1))
sketch13.addConstraint(Sketcher.Constraint("Vertical", 1, 2, 4, 2))
sketch13.addConstraint(Sketcher.Constraint("Vertical", 3, 2, 6, 2))
sketch13.addConstraint(Sketcher.Constraint("Equal", 3, 5))
sketch13.addConstraint(Sketcher.Constraint("DistanceX", 0, 2, 0, 1, 60.0))
sketch13.addConstraint(Sketcher.Constraint("DistanceY", 1, 2, 1, 1, 10.0))
sketch13.addConstraint(Sketcher.Constraint("DistanceY", -1, 1, 4, 2, 80.0))
pocket4 = body.newObject("PartDesign::Pocket", "Pocket003")
pocket4.Profile = sketch13
pocket4.Length = 53

# Sketch on YZ plane
sketch14 = body.newObject("Sketcher::SketchObject", "Sketch013")
sketch14.AttachmentSupport = (doc.getObject("YZ_Plane"), [""])
sketch14.MapMode = "FlatFace"
sketch14.AttachmentOffset = App.Placement(Vector(0, 0, 30), App.Rotation())
sketch14.addGeometry(Part.LineSegment(Vector(30, 70, 0), Vector(-30, 70, 0)), False)
sketch14.addGeometry(Part.LineSegment(Vector(-30, 70, 0), Vector(-30, 10, 0)), False)
sketch14.addGeometry(Part.LineSegment(Vector(-30, 10, 0), Vector(30, 10, 0)), False)
sketch14.addGeometry(Part.LineSegment(Vector(30, 10, 0), Vector(30, 70, 0)), False)
sketch14.addConstraint(Sketcher.Constraint("Coincident", 0, 2, 1, 1))
sketch14.addConstraint(Sketcher.Constraint("Coincident", 1, 2, 2, 1))
sketch14.addConstraint(Sketcher.Constraint("Coincident", 2, 2, 3, 1))
sketch14.addConstraint(Sketcher.Constraint("Coincident", 3, 2, 0, 1))
sketch14.addConstraint(Sketcher.Constraint("Horizontal", 0))
sketch14.addConstraint(Sketcher.Constraint("Vertical", 1))
sketch14.addConstraint(Sketcher.Constraint("Horizontal", 2))
sketch14.addConstraint(Sketcher.Constraint("Vertical", 3))
sketch14.addConstraint(Sketcher.Constraint("Equal", 2, 1))
sketch14.addConstraint(Sketcher.Constraint("DistanceX", 0, 2, 0, 1, 60.0))
sketch14.addConstraint(Sketcher.Constraint("DistanceX", 0, 2, -1, 1, 30.0))
sketch14.addConstraint(Sketcher.Constraint("DistanceY", -1, 1, 0, 2, 70.0))
pad2 = body.newObject("PartDesign::Pad", "Pad001")
pad2.Profile = sketch14
pad2.Length = 11
doc.recompute()

fillet = body.newObject("PartDesign::Fillet", "Fillet")
fillet.Base = (pad2, edges_at(pad2, [
    (-17, 30, 40),
    (-17, -30, 40),
    (-17, 0, 10),
    (12, -30, 10),
    (12, 30, 10),
    (-17, 0, 70),
    (12, 30, 70),
    (12, -30, 70),
    (41, 0, 10),
    (41, 30, 40),
    (41, 0, 70),
    (41, -30, 40),
]))
fillet.Radius = 2

doc.recompute()
